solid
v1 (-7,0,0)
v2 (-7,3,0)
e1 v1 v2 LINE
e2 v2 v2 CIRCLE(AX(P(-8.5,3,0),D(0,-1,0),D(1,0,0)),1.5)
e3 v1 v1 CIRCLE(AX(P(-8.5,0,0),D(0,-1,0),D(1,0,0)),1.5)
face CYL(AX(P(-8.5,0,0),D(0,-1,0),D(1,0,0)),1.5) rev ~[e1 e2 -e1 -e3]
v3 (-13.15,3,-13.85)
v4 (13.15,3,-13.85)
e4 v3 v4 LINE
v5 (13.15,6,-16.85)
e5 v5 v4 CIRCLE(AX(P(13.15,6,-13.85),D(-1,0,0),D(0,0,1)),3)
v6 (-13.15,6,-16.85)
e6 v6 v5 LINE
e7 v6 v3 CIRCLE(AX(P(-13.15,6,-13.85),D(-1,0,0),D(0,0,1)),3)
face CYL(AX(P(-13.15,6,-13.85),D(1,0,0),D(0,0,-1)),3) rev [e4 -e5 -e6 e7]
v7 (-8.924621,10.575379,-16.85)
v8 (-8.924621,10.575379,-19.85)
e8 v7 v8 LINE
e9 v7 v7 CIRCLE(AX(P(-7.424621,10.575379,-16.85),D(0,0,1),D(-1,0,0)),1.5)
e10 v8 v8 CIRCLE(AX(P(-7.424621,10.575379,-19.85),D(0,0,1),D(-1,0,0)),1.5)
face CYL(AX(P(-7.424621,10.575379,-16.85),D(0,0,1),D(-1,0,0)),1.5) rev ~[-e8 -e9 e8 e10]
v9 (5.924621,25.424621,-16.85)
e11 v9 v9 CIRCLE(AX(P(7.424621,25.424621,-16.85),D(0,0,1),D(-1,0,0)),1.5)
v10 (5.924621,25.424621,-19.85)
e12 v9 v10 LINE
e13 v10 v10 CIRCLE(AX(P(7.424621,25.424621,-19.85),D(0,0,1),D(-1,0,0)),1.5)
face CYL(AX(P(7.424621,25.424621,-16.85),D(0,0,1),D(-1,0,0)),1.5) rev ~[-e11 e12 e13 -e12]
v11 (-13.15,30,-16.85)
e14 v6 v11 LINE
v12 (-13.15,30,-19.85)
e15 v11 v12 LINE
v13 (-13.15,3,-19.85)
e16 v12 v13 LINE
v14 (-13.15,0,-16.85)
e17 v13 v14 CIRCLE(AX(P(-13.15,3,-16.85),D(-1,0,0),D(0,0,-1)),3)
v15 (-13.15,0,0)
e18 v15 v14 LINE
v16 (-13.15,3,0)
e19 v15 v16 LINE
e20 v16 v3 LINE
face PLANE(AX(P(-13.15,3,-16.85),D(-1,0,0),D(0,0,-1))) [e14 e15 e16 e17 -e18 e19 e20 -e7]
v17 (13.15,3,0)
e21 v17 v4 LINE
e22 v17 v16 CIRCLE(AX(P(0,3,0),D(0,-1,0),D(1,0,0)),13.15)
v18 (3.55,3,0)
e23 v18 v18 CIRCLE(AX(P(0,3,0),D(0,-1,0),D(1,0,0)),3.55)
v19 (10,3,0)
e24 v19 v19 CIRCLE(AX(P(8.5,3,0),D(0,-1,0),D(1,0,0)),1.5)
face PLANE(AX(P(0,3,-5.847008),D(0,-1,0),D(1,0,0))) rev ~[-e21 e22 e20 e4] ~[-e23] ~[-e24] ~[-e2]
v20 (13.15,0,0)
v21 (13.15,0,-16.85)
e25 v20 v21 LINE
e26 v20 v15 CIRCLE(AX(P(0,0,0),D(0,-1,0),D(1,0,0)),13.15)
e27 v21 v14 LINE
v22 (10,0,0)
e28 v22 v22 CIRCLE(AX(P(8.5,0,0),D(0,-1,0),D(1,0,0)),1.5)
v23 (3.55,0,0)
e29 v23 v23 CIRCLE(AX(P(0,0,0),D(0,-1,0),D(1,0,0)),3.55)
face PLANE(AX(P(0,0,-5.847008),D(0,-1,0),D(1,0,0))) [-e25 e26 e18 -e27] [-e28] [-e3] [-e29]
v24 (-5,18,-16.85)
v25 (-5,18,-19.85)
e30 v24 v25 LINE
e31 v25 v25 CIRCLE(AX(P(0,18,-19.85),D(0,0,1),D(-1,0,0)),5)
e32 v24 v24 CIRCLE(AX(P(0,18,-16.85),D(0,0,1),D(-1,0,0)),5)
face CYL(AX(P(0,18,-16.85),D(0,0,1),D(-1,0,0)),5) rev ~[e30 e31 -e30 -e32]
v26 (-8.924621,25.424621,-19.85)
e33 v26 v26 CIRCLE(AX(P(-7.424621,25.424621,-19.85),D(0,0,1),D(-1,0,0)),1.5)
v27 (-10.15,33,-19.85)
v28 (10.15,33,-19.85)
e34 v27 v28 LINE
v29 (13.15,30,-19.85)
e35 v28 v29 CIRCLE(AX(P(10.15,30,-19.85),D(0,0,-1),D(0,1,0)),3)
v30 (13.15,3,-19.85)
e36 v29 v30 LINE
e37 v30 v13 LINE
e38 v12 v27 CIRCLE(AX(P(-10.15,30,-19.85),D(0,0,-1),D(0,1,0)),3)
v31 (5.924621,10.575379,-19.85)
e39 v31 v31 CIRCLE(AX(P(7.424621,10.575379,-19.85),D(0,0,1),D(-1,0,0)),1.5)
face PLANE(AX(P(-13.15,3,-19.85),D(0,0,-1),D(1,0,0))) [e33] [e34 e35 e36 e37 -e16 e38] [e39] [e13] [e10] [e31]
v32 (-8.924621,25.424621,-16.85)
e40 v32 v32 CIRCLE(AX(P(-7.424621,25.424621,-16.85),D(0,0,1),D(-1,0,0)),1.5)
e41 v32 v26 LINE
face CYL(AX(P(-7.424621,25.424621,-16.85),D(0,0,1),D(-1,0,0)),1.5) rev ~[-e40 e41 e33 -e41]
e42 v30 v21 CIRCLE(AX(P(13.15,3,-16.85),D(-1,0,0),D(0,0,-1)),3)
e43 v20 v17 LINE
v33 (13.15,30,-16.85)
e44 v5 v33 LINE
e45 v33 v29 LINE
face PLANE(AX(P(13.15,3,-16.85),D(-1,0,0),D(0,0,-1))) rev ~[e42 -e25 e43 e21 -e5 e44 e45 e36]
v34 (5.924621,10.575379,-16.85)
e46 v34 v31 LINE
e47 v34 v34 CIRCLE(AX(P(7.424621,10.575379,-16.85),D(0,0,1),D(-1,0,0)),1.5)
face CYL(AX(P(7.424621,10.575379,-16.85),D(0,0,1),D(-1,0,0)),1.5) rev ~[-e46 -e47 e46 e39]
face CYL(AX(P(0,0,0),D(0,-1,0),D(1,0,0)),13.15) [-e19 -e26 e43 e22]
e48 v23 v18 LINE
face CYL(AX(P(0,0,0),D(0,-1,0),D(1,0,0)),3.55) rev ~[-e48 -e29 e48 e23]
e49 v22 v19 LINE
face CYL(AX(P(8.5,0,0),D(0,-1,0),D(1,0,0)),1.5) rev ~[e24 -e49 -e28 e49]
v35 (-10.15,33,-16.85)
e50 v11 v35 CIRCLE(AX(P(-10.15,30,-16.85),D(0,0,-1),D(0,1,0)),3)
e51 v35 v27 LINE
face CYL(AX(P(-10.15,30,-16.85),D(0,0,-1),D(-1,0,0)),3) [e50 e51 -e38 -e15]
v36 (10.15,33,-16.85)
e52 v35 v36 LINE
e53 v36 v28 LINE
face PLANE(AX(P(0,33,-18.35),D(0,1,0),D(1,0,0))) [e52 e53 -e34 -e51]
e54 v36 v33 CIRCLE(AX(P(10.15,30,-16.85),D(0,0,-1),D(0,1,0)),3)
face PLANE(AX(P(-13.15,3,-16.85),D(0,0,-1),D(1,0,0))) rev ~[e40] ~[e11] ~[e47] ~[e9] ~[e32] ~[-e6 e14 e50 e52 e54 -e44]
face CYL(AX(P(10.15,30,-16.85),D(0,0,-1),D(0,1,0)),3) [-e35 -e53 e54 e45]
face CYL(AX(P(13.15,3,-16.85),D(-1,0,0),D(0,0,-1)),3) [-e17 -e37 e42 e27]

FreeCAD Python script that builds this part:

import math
import FreeCAD as App
import Part
import Sketcher


def edges_at(feature, points):
    """Names of the edges that pass closest to the given points."""
    edges = feature.Shape.Edges
    near = lambda p: min(range(len(edges)), key=lambda i: edges[i].distToShape(Part.Vertex(*p))[0])
    return sorted({f"Edge{near(p) + 1}" for p in points})


def add_polygon(sketch, points):
    """Adds a closed chain of lines whose ends are joined by coincident constraints."""
    first, n = sketch.GeometryCount, len(points)
    for a, b in zip(points, points[1:] + points[:1]):
        sketch.addGeometry(Part.LineSegment(App.Vector(*a, 0), App.Vector(*b, 0)), False)
    for i in range(n):
        sketch.addConstraint(Sketcher.Constraint("Coincident", first + i, 2, first + (i + 1) % n, 1))

doc = App.newDocument("Part")
body = doc.addObject("PartDesign::Body", "Body")

# Sketch on XZ plane
sketch1 = body.newObject("Sketcher::SketchObject", "Sketch")
sketch1.AttachmentSupport = (doc.getObject("XZ_Plane"), [""])
sketch1.MapMode = "FlatFace"
sketch1.addGeometry(Part.ArcOfCircle(Part.Circle(App.Vector(0, 0, 0), App.Vector(0, 0, 1), 13.15), math.radians(0), math.radians(180)), False)
sketch1.addGeometry(Part.LineSegment(App.Vector(-13.15, 0, 0), App.Vector(-13.15, -19.85, 0)), False)
sketch1.addGeometry(Part.LineSegment(App.Vector(-13.15, -19.85, 0), App.Vector(13.15, -19.85, 0)), False)
sketch1.addGeometry(Part.LineSegment(App.Vector(13.15, -19.85, 0), App.Vector(13.15, 0, 0)), False)
sketch1.addGeometry(Part.Circle(App.Vector(-8.5, 0, 0), App.Vector(0, 0, 1), 1.5), False)
sketch1.addGeometry(Part.Circle(App.Vector(0, 0, 0), App.Vector(0, 0, 1), 3.55), False)
sketch1.addGeometry(Part.Circle(App.Vector(8.5, 0, 0), App.Vector(0, 0, 1), 1.5), False)
sketch1.addConstraint(Sketcher.Constraint("Tangent", 0, 2, 1, 1))
sketch1.addConstraint(Sketcher.Constraint("Coincident", 1, 2, 2, 1))
sketch1.addConstraint(Sketcher.Constraint("Coincident", 2, 2, 3, 1))
sketch1.addConstraint(Sketcher.Constraint("Tangent", 3, 2, 0, 1))
sketch1.addConstraint(Sketcher.Constraint("Vertical", 1))
sketch1.addConstraint(Sketcher.Constraint("Horizontal", 2))
sketch1.addConstraint(Sketcher.Constraint("Vertical", 3))
sketch1.addConstraint(Sketcher.Constraint("Coincident", 0, 3, -1, 1))
sketch1.addConstraint(Sketcher.Constraint("Coincident", 5, 3, -1, 1))
sketch1.addConstraint(Sketcher.Constraint("Equal", 4, 6))
sketch1.addConstraint(Sketcher.Constraint("Symmetric", 4, 3, 6, 3, -1, 1))
sketch1.addConstraint(Sketcher.Constraint("PointOnObject", 4, 3, -1))
sketch1.addConstraint(Sketcher.Constraint("Diameter", 4, 3.0))
sketch1.addConstraint(Sketcher.Constraint("Diameter", 5, 7.1))
sketch1.addConstraint(Sketcher.Constraint("Radius", 0, 13.15))
sketch1.addConstraint(Sketcher.Constraint("DistanceX", 4, 3, 6, 3, 17.0))
sketch1.addConstraint(Sketcher.Constraint("DistanceY", 1, 2, 1, 1, 19.85))
pad1 = body.newObject("PartDesign::Pad", "Pad")
pad1.Profile = sketch1
pad1.Length = 3
pad1.Reversed = True

# Sketch on XZ plane
sketch2 = body.newObject("Sketcher::SketchObject", "Sketch001")
sketch2.AttachmentSupport = (doc.getObject("XZ_Plane"), [""])
sketch2.MapMode = "FlatFace"
sketch2.AttachmentOffset = App.Placement(App.Vector(0, 0, -3), App.Rotation())
add_polygon(sketch2, [(-13.15, -19.85), (-13.15, -16.85), (13.15, -16.85), (13.15, -19.85)])  # lines 0-3
sketch2.addConstraint(Sketcher.Constraint("Vertical", 0))
sketch2.addConstraint(Sketcher.Constraint("Horizontal", 1))
sketch2.addConstraint(Sketcher.Constraint("Vertical", 2))
sketch2.addConstraint(Sketcher.Constraint("Horizontal", 3))
sketch2.addConstraint(Sketcher.Constraint("DistanceY", 0, 1, 0, 2, 3.0))
sketch2.addConstraint(Sketcher.Constraint("DistanceX", 1, 1, 1, 2, 26.3))
sketch2.addConstraint(Sketcher.Constraint("DistanceX", 0, 2, -1, 1, 13.15))
sketch2.addConstraint(Sketcher.Constraint("DistanceY", 0, 2, -1, 1, 16.85))
pad2 = body.newObject("PartDesign::Pad", "Pad001")
pad2.Profile = sketch2
pad2.Length = 30
pad2.Reversed = True

# Sketch on XY plane
sketch3 = body.newObject("Sketcher::SketchObject", "Sketch002")
sketch3.AttachmentSupport = (doc.getObject("XY_Plane"), [""])
sketch3.MapMode = "FlatFace"
sketch3.AttachmentOffset = App.Placement(App.Vector(0, 0, -16.85), App.Rotation())
sketch3.addGeometry(Part.Circle(App.Vector(0, 18, 0), App.Vector(0, 0, 1), 5), False)
sketch3.addGeometry(Part.Circle(App.Vector(7.424621, 25.424621, 0), App.Vector(0, 0, 1), 1.5), False)
sketch3.addGeometry(Part.Circle(App.Vector(-7.424621, 25.424621, 0), App.Vector(0, 0, 1), 1.5), False)
sketch3.addGeometry(Part.Circle(App.Vector(-7.424621, 10.575379, 0), App.Vector(0, 0, 1), 1.5), False)
sketch3.addGeometry(Part.Circle(App.Vector(7.424621, 10.575379, 0), App.Vector(0, 0, 1), 1.5), False)
sketch3.addConstraint(Sketcher.Constraint("Equal", 1, 2))
sketch3.addConstraint(Sketcher.Constraint("Equal", 2, 3))
sketch3.addConstraint(Sketcher.Constraint("Equal", 3, 4))
sketch3.addConstraint(Sketcher.Constraint("Symmetric", 1, 3, 2, 3, -2))
sketch3.addConstraint(Sketcher.Constraint("Symmetric", 3, 3, 4, 3, -2))
sketch3.addConstraint(Sketcher.Constraint("PointOnObject", 0, 3, -2))
sketch3.addConstraint(Sketcher.Constraint("Vertical", 2, 3, 3, 3))
sketch3.addConstraint(Sketcher.Constraint("Diameter", 0, 10.0))
sketch3.addConstraint(Sketcher.Constraint("Diameter", 1, 3.0))
sketch3.addConstraint(Sketcher.Constraint("DistanceY", -1, 1, 0, 3, 18.0))
sketch3.addConstraint(Sketcher.Constraint("DistanceX", -1, 1, 1, 3, 7.424621))
sketch3.addConstraint(Sketcher.Constraint("DistanceY", -1, 1, 1, 3, 25.424621))
sketch3.addConstraint(Sketcher.Constraint("DistanceY", -1, 1, 3, 3, 10.575379))
pocket1 = body.newObject("PartDesign::Pocket", "Pocket")
pocket1.Profile = sketch3
pocket1.Length = 3
doc.recompute()

fillet = body.newObject("PartDesign::Fillet", "Fillet")
fillet.Base = (pocket1, edges_at(pocket1, [(13.15, 33, -18.35), (-13.15, 33, -18.35)]))
fillet.Radius = 3
doc.recompute()

fillet2 = body.newObject("PartDesign::Fillet", "Fillet001")
fillet2.Base = (fillet, edges_at(fillet, [(0, 3, -16.85), (0, 0, -19.85)]))
fillet2.Radius = 3

doc.recompute()
